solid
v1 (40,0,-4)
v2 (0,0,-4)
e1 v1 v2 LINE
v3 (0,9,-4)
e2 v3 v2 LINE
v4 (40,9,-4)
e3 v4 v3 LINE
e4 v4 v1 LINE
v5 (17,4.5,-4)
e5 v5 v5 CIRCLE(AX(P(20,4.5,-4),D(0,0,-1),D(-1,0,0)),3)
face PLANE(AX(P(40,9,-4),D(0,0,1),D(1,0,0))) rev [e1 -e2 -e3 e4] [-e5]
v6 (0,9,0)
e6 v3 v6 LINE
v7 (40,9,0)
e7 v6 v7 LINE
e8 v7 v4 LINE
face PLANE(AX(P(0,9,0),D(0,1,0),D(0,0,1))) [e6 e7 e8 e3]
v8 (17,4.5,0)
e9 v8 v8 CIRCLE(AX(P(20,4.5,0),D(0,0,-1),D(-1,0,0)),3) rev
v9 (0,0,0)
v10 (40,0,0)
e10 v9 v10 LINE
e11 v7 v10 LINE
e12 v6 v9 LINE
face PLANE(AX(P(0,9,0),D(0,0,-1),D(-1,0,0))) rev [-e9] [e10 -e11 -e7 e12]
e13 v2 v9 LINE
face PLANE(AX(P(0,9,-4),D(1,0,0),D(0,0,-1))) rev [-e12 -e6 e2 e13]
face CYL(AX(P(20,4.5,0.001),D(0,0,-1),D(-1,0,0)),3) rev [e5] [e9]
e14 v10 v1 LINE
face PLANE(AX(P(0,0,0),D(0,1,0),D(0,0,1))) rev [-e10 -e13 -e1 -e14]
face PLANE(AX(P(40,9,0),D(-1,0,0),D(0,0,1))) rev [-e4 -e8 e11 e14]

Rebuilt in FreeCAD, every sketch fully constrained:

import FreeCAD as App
import Part
import Sketcher
from FreeCAD import Vector

doc = App.newDocument("Part")
params = doc.addObject("Spreadsheet::Sheet", "Params")
for row, (alias, value) in enumerate([
    ("sketch1_width", "40 mm"),
    ("sketch1_height", "4 mm"),
    ("pad1_length", "9 mm"),
    ("sketch2_diameter", "6 mm"),
], start=1):
    params.set(f"A{row}", alias)
    params.set(f"B{row}", "=" + value)
    params.setAlias(f"B{row}", alias)

body = doc.addObject("PartDesign::Body", "Body")

# Sketch on XZ plane
sketch1 = doc.addObject("Sketcher::SketchObject", "Sketch")
body.addObject(sketch1)
sketch1.AttachmentSupport = (doc.XZ_Plane, [""])
sketch1.MapMode = "FlatFace"
sketch1.addGeometry([
    Part.LineSegment(Vector(0, -4, 0), Vector(0, 0, 0)),
    Part.LineSegment(Vector(0, 0, 0), Vector(40, 0, 0)),
    Part.LineSegment(Vector(40, 0, 0), Vector(40, -4, 0)),
    Part.LineSegment(Vector(40, -4, 0), Vector(0, -4, 0)),
], False)
sketch1.addConstraint([
    Sketcher.Constraint("Coincident", 0, 2, 1, 1),
    Sketcher.Constraint("Coincident", 1, 2, 2, 1),
    Sketcher.Constraint("Coincident", 2, 2, 3, 1),
    Sketcher.Constraint("Coincident", 3, 2, 0, 1),
    Sketcher.Constraint("Vertical", 0),
    Sketcher.Constraint("Horizontal", 1),
    Sketcher.Constraint("Vertical", 2),
    Sketcher.Constraint("Horizontal", 3),
    Sketcher.Constraint("Coincident", 0, 2, -1, 1),
    Sketcher.Constraint("DistanceX", 1, 1, 1, 2, 40.0),
    Sketcher.Constraint("DistanceY", 0, 1, 0, 2, 4.0),
])
sketch1.setExpression("Constraints[9]", "Params.sketch1_width")
sketch1.setExpression("Constraints[10]", "Params.sketch1_height")
pad1 = doc.addObject("PartDesign::Pad", "Pad")
body.addObject(pad1)
pad1.Profile = sketch1
pad1.setExpression("Length", "Params.pad1_length")
pad1.Reversed = True

# Sketch on XY plane
sketch2 = doc.addObject("Sketcher::SketchObject", "Sketch001")
body.addObject(sketch2)
sketch2.AttachmentSupport = (doc.XY_Plane, [""])
sketch2.MapMode = "FlatFace"
sketch2.AttachmentOffset = App.Placement(Vector(0, 0, -4), App.Rotation())
sketch2.addGeometry(Part.Circle(Vector(20, 4.5, 0), Vector(0, 0, 1), 3), False)
sketch2.addConstraint([
    Sketcher.Constraint("Diameter", 0, 6.0),
    Sketcher.Constraint("DistanceX", -1, 1, 0, 3, 20.0),
    Sketcher.Constraint("DistanceY", -1, 1, 0, 3, 4.5),
])
sketch2.setExpression("Constraints[0]", "Params.sketch2_diameter")
pocket1 = doc.addObject("PartDesign::Pocket", "Pocket")
body.addObject(pocket1)
pocket1.Profile = sketch2
pocket1.Type = "UpToFirst"
pocket1.Reversed = True

doc.recompute()
